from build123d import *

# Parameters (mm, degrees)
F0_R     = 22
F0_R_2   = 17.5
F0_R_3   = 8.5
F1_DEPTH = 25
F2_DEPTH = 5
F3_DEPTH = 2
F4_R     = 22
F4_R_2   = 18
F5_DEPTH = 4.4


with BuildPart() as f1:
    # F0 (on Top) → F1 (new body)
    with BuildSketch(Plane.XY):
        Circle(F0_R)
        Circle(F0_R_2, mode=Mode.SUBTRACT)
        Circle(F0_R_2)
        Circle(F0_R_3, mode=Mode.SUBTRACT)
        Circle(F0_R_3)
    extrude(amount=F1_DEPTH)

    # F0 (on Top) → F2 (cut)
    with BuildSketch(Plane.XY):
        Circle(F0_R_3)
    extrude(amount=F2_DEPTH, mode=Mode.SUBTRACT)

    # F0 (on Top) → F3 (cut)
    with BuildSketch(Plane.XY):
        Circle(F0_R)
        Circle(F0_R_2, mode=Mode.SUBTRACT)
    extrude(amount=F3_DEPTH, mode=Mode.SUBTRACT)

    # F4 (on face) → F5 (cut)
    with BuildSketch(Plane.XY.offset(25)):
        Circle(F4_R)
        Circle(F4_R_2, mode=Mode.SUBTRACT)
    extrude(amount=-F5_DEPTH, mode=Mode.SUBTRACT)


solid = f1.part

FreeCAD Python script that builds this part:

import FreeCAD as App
import Part
import Sketcher

V = App.Vector

doc = App.newDocument("Part")
body = doc.addObject("PartDesign::Body", "Body")

# Sketch on XY plane
sketch1 = body.newObject("Sketcher::SketchObject", "Sketch")
sketch1.AttachmentSupport = (doc.getObject("XY_Plane"), [""])
sketch1.MapMode = "FlatFace"
sketch1.addGeometry(Part.Circle(V(0, 0, 0), V(0, 0, 1), 22), False)
sketch1.addConstraint(Sketcher.Constraint("Coincident", 0, 3, -1, 1))
sketch1.addConstraint(Sketcher.Constraint("Diameter", 0, 44.0))
pad1 = body.newObject("PartDesign::Pad", "Pad")
pad1.Profile = sketch1
pad1.Length = 25

# Sketch on XY plane
sketch2 = body.newObject("Sketcher::SketchObject", "Sketch001")
sketch2.AttachmentSupport = (doc.getObject("XY_Plane"), [""])
sketch2.MapMode = "FlatFace"
sketch2.addGeometry(Part.Circle(V(0, 0, 0), V(0, 0, 1), 8), False)
sketch2.addConstraint(Sketcher.Constraint("Coincident", 0, 3, -1, 1))
sketch2.addConstraint(Sketcher.Constraint("Diameter", 0, 17.0))
pocket1 = body.newObject("PartDesign::Pocket", "Pocket")
pocket1.Profile = sketch2
pocket1.Length = 5
pocket1.Reversed = True

# Sketch on XY plane
sketch3 = body.newObject("Sketcher::SketchObject", "Sketch002")
sketch3.AttachmentSupport = (doc.getObject("XY_Plane"), [""])
sketch3.MapMode = "FlatFace"
sketch3.addGeometry(Part.Circle(V(0, 0, 0), V(0, 0, 1), 22), False)
sketch3.addGeometry(Part.Circle(V(0, 0, 0), V(0, 0, 1), 18), False)
sketch3.addConstraint(Sketcher.Constraint("Coincident", 0, 3, -1, 1))
sketch3.addConstraint(Sketcher.Constraint("Coincident", 1, 3, -1, 1))
sketch3.addConstraint(Sketcher.Constraint("Diameter", 0, 44.0))
sketch3.addConstraint(Sketcher.Constraint("Diameter", 1, 35.0))
pocket2 = body.newObject("PartDesign::Pocket", "Pocket001")
pocket2.Profile = sketch3
pocket2.Length = 2
pocket2.Reversed = True

# Sketch on XY plane
sketch4 = body.newObject("Sketcher::SketchObject", "Sketch003")
sketch4.AttachmentSupport = (doc.getObject("XY_Plane"), [""])
sketch4.MapMode = "FlatFace"
sketch4.AttachmentOffset = App.Placement(V(0, 0, 25), App.Rotation())
sketch4.addGeometry(Part.Circle(V(0, 0, 0), V(0, 0, 1), 22), False)
sketch4.addGeometry(Part.Circle(V(0, 0, 0), V(0, 0, 1), 18), False)
sketch4.addConstraint(Sketcher.Constraint("Coincident", 0, 3, -1, 1))
sketch4.addConstraint(Sketcher.Constraint("Coincident", 1, 3, -1, 1))
sketch4.addConstraint(Sketcher.Constraint("Diameter", 0, 44.0))
sketch4.addConstraint(Sketcher.Constraint("Diameter", 1, 36.0))
pocket3 = body.newObject("PartDesign::Pocket", "Pocket002")
pocket3.Profile = sketch4
pocket3.Length = 4.4

doc.recompute()
